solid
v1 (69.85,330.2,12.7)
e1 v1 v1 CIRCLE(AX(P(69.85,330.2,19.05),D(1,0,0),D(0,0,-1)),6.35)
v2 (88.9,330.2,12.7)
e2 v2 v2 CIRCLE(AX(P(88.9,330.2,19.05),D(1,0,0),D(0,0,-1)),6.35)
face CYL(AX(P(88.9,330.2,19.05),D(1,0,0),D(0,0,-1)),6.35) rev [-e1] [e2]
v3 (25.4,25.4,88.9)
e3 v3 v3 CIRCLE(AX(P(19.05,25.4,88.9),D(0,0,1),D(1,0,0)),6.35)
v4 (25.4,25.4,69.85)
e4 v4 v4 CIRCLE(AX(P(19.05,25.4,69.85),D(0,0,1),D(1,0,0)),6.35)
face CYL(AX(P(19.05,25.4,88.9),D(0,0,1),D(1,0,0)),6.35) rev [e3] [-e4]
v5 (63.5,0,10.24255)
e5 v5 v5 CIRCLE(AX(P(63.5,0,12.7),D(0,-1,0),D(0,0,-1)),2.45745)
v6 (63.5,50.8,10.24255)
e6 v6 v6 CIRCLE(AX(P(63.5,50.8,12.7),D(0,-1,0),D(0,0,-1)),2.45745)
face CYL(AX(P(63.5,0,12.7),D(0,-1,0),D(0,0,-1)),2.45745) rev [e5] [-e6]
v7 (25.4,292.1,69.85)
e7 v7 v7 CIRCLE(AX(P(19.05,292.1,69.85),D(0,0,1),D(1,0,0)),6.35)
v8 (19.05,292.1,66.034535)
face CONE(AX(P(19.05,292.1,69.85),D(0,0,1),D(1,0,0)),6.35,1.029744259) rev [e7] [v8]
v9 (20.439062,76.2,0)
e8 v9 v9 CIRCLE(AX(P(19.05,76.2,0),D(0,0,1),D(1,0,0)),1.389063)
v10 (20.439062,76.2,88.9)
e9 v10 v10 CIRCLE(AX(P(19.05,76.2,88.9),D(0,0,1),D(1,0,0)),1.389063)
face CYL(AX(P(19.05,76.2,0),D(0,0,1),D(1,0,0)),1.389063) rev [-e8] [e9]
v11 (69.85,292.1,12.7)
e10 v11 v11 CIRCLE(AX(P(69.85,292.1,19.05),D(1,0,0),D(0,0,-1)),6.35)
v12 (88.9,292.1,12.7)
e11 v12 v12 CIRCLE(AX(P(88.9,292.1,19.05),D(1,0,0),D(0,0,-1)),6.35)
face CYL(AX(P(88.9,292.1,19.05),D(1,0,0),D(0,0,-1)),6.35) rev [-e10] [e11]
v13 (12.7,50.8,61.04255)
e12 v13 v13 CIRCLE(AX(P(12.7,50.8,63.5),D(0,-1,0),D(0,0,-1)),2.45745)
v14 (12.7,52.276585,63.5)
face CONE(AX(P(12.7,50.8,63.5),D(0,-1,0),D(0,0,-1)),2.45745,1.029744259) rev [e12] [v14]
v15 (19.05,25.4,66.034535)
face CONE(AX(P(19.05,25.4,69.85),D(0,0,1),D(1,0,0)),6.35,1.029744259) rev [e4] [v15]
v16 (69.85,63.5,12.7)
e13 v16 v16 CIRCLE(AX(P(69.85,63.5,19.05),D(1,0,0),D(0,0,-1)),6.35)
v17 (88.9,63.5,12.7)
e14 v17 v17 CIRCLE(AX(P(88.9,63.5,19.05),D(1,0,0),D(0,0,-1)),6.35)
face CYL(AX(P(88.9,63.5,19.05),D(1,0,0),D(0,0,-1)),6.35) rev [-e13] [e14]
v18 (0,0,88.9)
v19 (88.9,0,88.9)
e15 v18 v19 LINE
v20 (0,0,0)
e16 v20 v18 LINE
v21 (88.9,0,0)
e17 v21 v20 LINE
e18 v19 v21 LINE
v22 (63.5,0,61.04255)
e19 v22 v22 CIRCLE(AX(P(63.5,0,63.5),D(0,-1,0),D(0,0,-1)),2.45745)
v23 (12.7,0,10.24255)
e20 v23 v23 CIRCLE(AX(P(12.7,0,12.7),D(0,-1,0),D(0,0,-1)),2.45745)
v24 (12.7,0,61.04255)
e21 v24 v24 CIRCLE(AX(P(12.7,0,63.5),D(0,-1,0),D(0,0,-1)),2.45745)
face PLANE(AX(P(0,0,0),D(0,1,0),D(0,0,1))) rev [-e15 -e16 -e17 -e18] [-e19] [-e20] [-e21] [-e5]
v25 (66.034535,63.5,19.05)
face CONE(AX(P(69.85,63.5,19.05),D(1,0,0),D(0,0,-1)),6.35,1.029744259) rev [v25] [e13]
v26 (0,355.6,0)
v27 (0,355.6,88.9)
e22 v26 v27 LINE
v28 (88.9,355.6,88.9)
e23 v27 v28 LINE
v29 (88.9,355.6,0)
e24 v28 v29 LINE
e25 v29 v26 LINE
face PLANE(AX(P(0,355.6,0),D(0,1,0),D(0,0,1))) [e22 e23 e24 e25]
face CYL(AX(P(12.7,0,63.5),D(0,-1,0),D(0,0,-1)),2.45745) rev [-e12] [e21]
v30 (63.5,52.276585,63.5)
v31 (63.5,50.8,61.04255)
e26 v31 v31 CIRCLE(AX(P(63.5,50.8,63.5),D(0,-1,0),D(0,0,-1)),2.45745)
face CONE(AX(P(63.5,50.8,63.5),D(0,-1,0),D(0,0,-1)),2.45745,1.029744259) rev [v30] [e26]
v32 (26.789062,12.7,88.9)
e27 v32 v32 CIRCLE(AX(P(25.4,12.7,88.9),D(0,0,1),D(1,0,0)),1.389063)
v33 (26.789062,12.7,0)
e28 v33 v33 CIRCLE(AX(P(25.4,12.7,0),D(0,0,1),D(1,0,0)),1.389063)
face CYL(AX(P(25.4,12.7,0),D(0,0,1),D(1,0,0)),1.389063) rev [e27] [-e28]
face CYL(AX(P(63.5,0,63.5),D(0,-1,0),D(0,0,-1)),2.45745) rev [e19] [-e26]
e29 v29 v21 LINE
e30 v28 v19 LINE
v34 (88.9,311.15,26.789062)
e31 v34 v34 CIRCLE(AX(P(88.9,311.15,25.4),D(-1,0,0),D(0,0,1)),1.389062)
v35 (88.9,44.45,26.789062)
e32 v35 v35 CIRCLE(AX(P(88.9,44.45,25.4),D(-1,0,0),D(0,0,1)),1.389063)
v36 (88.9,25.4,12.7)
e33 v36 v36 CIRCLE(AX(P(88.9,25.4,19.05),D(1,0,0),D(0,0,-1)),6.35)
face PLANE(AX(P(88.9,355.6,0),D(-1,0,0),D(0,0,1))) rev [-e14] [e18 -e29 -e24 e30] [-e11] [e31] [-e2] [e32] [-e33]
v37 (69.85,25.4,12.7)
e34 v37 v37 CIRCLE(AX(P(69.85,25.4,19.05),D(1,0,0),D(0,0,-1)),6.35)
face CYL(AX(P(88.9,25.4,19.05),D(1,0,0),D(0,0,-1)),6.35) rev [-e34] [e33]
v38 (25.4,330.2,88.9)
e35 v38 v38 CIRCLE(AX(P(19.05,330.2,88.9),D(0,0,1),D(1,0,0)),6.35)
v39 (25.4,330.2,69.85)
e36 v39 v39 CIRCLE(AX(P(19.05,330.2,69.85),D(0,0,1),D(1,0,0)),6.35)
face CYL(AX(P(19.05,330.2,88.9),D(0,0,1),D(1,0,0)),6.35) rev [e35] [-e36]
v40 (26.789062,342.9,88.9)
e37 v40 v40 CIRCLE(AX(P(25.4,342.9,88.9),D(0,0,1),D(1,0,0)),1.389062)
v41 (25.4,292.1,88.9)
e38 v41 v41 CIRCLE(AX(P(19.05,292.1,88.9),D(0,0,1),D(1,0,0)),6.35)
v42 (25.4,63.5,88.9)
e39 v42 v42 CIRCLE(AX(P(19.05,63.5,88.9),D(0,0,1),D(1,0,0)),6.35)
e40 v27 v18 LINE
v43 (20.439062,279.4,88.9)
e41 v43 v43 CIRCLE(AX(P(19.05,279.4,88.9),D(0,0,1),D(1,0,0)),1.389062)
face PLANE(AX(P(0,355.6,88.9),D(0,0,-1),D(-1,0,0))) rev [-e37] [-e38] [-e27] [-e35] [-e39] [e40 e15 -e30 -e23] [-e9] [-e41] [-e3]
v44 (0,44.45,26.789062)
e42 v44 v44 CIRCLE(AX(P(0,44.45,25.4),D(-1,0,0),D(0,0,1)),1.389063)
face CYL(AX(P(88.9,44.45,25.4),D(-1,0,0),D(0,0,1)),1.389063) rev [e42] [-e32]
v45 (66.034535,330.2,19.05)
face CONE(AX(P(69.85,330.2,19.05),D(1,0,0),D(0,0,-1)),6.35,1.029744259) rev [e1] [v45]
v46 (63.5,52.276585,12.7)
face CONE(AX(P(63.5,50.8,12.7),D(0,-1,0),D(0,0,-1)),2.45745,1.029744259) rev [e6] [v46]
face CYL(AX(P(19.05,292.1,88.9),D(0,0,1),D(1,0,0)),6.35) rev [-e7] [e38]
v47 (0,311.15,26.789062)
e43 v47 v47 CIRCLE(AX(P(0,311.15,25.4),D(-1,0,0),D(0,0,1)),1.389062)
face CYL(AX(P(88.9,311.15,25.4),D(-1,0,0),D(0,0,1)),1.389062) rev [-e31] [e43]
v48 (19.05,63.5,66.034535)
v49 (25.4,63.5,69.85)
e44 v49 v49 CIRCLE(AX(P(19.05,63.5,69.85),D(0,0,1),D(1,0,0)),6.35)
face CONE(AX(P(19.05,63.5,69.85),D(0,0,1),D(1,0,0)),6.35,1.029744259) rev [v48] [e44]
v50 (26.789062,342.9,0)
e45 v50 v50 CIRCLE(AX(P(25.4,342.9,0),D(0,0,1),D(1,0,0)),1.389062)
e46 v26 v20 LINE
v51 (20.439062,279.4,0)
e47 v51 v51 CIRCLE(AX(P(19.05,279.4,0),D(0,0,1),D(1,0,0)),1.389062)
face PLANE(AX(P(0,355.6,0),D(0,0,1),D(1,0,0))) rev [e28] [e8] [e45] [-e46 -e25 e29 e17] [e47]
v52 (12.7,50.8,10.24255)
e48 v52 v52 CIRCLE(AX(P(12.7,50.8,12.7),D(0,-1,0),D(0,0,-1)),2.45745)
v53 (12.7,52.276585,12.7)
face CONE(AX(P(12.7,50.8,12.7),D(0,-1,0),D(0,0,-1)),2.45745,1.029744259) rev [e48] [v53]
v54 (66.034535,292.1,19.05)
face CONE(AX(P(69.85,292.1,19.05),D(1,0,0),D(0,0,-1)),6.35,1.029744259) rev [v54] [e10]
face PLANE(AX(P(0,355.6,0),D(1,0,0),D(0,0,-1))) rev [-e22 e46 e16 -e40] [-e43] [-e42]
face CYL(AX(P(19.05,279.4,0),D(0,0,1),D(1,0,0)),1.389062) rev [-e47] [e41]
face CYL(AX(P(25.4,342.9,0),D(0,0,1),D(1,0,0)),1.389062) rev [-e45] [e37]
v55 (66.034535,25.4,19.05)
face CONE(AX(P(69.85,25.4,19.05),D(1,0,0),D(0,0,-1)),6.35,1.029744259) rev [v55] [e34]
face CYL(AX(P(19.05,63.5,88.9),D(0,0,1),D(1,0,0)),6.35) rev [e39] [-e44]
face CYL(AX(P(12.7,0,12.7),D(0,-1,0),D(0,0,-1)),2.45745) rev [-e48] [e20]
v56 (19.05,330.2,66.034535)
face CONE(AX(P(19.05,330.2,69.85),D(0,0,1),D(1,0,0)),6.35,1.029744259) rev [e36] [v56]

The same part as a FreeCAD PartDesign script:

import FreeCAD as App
import Part
import Sketcher

V = App.Vector
Q = App.Units.Quantity


def add_polygon(sketch, points):
    """Adds a closed chain of lines whose ends are joined by coincident constraints."""
    first, n = sketch.GeometryCount, len(points)
    for a, b in zip(points, points[1:] + points[:1]):
        sketch.addGeometry(Part.LineSegment(App.Vector(*a, 0), App.Vector(*b, 0)), False)
    for i in range(n):
        sketch.addConstraint(Sketcher.Constraint("Coincident", first + i, 2, first + (i + 1) % n, 1))

doc = App.newDocument("Part")
body = doc.addObject("PartDesign::Body", "Body")

sketch1 = body.newObject("Sketcher::SketchObject", "Sketch")
sketch1.AttachmentSupport = (doc.getObject("XZ_Plane"), [""])
sketch1.MapMode = "FlatFace"
add_polygon(sketch1, [(0, 0), (0, 89), (89, 89), (89, 0)])
sketch1.addConstraint(Sketcher.Constraint("Vertical", 0))
sketch1.addConstraint(Sketcher.Constraint("Horizontal", 1))
sketch1.addConstraint(Sketcher.Constraint("Vertical", 2))
sketch1.addConstraint(Sketcher.Constraint("Horizontal", 3))
sketch1.addConstraint(Sketcher.Constraint("Coincident", 3, 2, -1, 1))
sketch1.addConstraint(Sketcher.Constraint("Equal", 3, 0))
sketch1.addConstraint(Sketcher.Constraint("DistanceX", 1, 1, 1, 2, Q("3.5 in")))
pad1 = body.newObject("PartDesign::Pad", "Pad")
pad1.Profile = sketch1
pad1.Length = Q("14 in")
pad1.Reversed = True

sketch2 = body.newObject("Sketcher::SketchObject", "Sketch001")
sketch2.AttachmentSupport = (doc.getObject("XY_Plane"), [""])
sketch2.MapMode = "FlatFace"
sketch2.AttachmentOffset = App.Placement(V(0, 0, 3.5 * 25.4), App.Rotation())
sketch2.addGeometry(Part.Circle(V(19.1, 76.2, 0), V(0, 0, 1), 1.4), False)
sketch2.addGeometry(Part.Circle(V(19.1, 279.4, 0), V(0, 0, 1), 1.4), False)
sketch2.addGeometry(Part.Circle(V(25.4, 342.9, 0), V(0, 0, 1), 1.4), False)
sketch2.addGeometry(Part.Circle(V(25.4, 12.7, 0), V(0, 0, 1), 1.4), False)
sketch2.addConstraint(Sketcher.Constraint("Equal", 0, 1))
sketch2.addConstraint(Sketcher.Constraint("Equal", 1, 2))
sketch2.addConstraint(Sketcher.Constraint("Equal", 2, 3))
sketch2.addConstraint(Sketcher.Constraint("Vertical", 0, 3, 1, 3))
sketch2.addConstraint(Sketcher.Constraint("Vertical", 2, 3, 3, 3))
sketch2.addConstraint(Sketcher.Constraint("Diameter", 0, Q("0.109375 in")))
sketch2.addConstraint(Sketcher.Constraint("DistanceY", -1, 1, 0, 3, Q("3 in")))
sketch2.addConstraint(Sketcher.Constraint("DistanceY", -1, 1, 1, 3, Q("11 in")))
sketch2.addConstraint(Sketcher.Constraint("DistanceX", -1, 1, 2, 3, Q("1 in")))
sketch2.addConstraint(Sketcher.Constraint("DistanceY", 3, 3, 2, 3, Q("13 in")))
sketch2.addConstraint(Sketcher.Constraint("DistanceY", -1, 1, 2, 3, Q("13.5 in")))
sketch2.addConstraint(Sketcher.Constraint("DistanceX", -1, 1, 0, 3, Q("0.75 in")))
pocket1 = body.newObject("PartDesign::Pocket", "Pocket")
pocket1.Profile = sketch2
pocket1.Type = "ThroughAll"
pocket1.Midplane = True

sketch3 = body.newObject("Sketcher::SketchObject", "Sketch002")
sketch3.AttachmentSupport = (doc.getObject("YZ_Plane"), [""])
sketch3.MapMode = "FlatFace"
sketch3.addGeometry(Part.Circle(V(311.1, 25.4, 0), V(0, 0, 1), 1.4), False)
sketch3.addGeometry(Part.Circle(V(44.5, 25.4, 0), V(0, 0, 1), 1.4), False)
sketch3.addConstraint(Sketcher.Constraint("Equal", 0, 1))
sketch3.addConstraint(Sketcher.Constraint("Horizontal", 0, 3, 1, 3))
sketch3.addConstraint(Sketcher.Constraint("Diameter", 0, Q("0.109375 in")))
sketch3.addConstraint(Sketcher.Constraint("DistanceY", -1, 1, 0, 3, Q("1 in")))
sketch3.addConstraint(Sketcher.Constraint("DistanceX", 1, 3, 0, 3, Q("10.5 in")))
sketch3.addConstraint(Sketcher.Constraint("DistanceX", -1, 1, 0, 3, Q("12.25 in")))
pocket2 = body.newObject("PartDesign::Pocket", "Pocket001")
pocket2.Profile = sketch3
pocket2.Type = "ThroughAll"
pocket2.Midplane = True

sketch4 = body.newObject("Sketcher::SketchObject", "Sketch003")
sketch4.AttachmentSupport = (doc.getObject("XY_Plane"), [""])
sketch4.MapMode = "FlatFace"
sketch4.AttachmentOffset = App.Placement(V(0, 0, 3.5 * 25.4), App.Rotation())
sketch4.addGeometry(Part.Circle(V(19, 292, 0), V(0, 0, 1), 6), False)
sketch4.addGeometry(Part.Circle(V(19, 330, 0), V(0, 0, 1), 6), False)
sketch4.addGeometry(Part.Circle(V(19, 25, 0), V(0, 0, 1), 6), False)
sketch4.addGeometry(Part.Circle(V(19, 64, 0), V(0, 0, 1), 6), False)
sketch4.addConstraint(Sketcher.Constraint("Equal", 0, 1))
sketch4.addConstraint(Sketcher.Constraint("Equal", 1, 2))
sketch4.addConstraint(Sketcher.Constraint("Equal", 2, 3))
sketch4.addConstraint(Sketcher.Constraint("Vertical", 0, 3, 1, 3))
sketch4.addConstraint(Sketcher.Constraint("Vertical", 1, 3, 2, 3))
sketch4.addConstraint(Sketcher.Constraint("Vertical", 2, 3, 3, 3))
sketch4.addConstraint(Sketcher.Constraint("Diameter", 0, Q("0.5 in")))
sketch4.addConstraint(Sketcher.Constraint("DistanceY", -1, 1, 1, 3, Q("13 in")))
sketch4.addConstraint(Sketcher.Constraint("DistanceY", -1, 1, 2, 3, Q("1 in")))
sketch4.addConstraint(Sketcher.Constraint("DistanceY", 3, 3, 0, 3, Q("9 in")))
sketch4.addConstraint(Sketcher.Constraint("DistanceY", -1, 1, 0, 3, Q("11.5 in")))
sketch4.addConstraint(Sketcher.Constraint("DistanceX", -1, 1, 0, 3, Q("0.75 in")))
doc.recompute()
hole = body.newObject("PartDesign::Hole", "Hole")
hole.Profile = sketch4
hole.ThreadType = "None"
hole.Diameter = Q("0.5 in")
hole.DepthType = "Dimension"
hole.Depth = Q("0.75 in")
hole.DrillPoint = "Angled"
hole.DrillPointAngle = 118

sketch5 = body.newObject("Sketcher::SketchObject", "Sketch004")
sketch5.AttachmentSupport = (doc.getObject("YZ_Plane"), [""])
sketch5.MapMode = "FlatFace"
sketch5.AttachmentOffset = App.Placement(V(0, 0, 3.5 * 25.4), App.Rotation())
sketch5.addGeometry(Part.Circle(V(64, 19, 0), V(0, 0, 1), 6), False)
sketch5.addGeometry(Part.Circle(V(25, 19, 0), V(0, 0, 1), 6), False)
sketch5.addGeometry(Part.Circle(V(330, 19, 0), V(0, 0, 1), 6), False)
sketch5.addGeometry(Part.Circle(V(292, 19, 0), V(0, 0, 1), 6), False)
sketch5.addConstraint(Sketcher.Constraint("Equal", 0, 1))
sketch5.addConstraint(Sketcher.Constraint("Equal", 1, 2))
sketch5.addConstraint(Sketcher.Constraint("Equal", 2, 3))
sketch5.addConstraint(Sketcher.Constraint("Horizontal", 0, 3, 1, 3))
sketch5.addConstraint(Sketcher.Constraint("Horizontal", 1, 3, 2, 3))
sketch5.addConstraint(Sketcher.Constraint("Horizontal", 2, 3, 3, 3))
sketch5.addConstraint(Sketcher.Constraint("Diameter", 0, Q("0.5 in")))
sketch5.addConstraint(Sketcher.Constraint("DistanceX", -1, 1, 1, 3, Q("1 in")))
sketch5.addConstraint(Sketcher.Constraint("DistanceX", -1, 1, 2, 3, Q("13 in")))
sketch5.addConstraint(Sketcher.Constraint("DistanceX", 0, 3, 3, 3, Q("9 in")))
sketch5.addConstraint(Sketcher.Constraint("DistanceX", -1, 1, 0, 3, Q("2.5 in")))
sketch5.addConstraint(Sketcher.Constraint("DistanceY", -1, 1, 0, 3, Q("0.75 in")))
doc.recompute()
hole2 = body.newObject("PartDesign::Hole", "Hole001")
hole2.Profile = sketch5
hole2.ThreadType = "None"
hole2.Diameter = Q("0.5 in")
hole2.DepthType = "Dimension"
hole2.Depth = Q("0.75 in")
hole2.DrillPoint = "Angled"
hole2.DrillPointAngle = 118

sketch6 = body.newObject("Sketcher::SketchObject", "Sketch005")
sketch6.AttachmentSupport = (doc.getObject("XZ_Plane"), [""])
sketch6.MapMode = "FlatFace"
sketch6.addGeometry(Part.Circle(V(12.7, 63.5, 0), V(0, 0, 1), 2.5), False)
sketch6.addGeometry(Part.Circle(V(63.5, 63.5, 0), V(0, 0, 1), 2.5), False)
sketch6.addGeometry(Part.Circle(V(63.5, 12.7, 0), V(0, 0, 1), 2.5), False)
sketch6.addGeometry(Part.Circle(V(12.7, 12.7, 0), V(0, 0, 1), 2.5), False)
sketch6.addConstraint(Sketcher.Constraint("Equal", 0, 1))
sketch6.addConstraint(Sketcher.Constraint("Equal", 1, 2))
sketch6.addConstraint(Sketcher.Constraint("Equal", 2, 3))
sketch6.addConstraint(Sketcher.Constraint("Horizontal", 0, 3, 1, 3))
sketch6.addConstraint(Sketcher.Constraint("Horizontal", 2, 3, 3, 3))
sketch6.addConstraint(Sketcher.Constraint("Vertical", 1, 3, 2, 3))
sketch6.addConstraint(Sketcher.Constraint("Vertical", 0, 3, 3, 3))
sketch6.addConstraint(Sketcher.Constraint("DistanceX", 0, 3, 1, 3, Q("2 in")))
sketch6.addConstraint(Sketcher.Constraint("DistanceY", 2, 3, 1, 3, Q("2 in")))
sketch6.addConstraint(Sketcher.Constraint("Diameter", 0, Q("0.1935 in")))
sketch6.addConstraint(Sketcher.Constraint("DistanceX", -1, 1, 0, 3, Q("0.5 in")))
sketch6.addConstraint(Sketcher.Constraint("DistanceY", -1, 1, 0, 3, Q("2.5 in")))
doc.recompute()
hole3 = body.newObject("PartDesign::Hole", "Hole002")
hole3.Profile = sketch6
hole3.ThreadType = "None"
hole3.Diameter = Q("0.1935 in")
hole3.DepthType = "Dimension"
hole3.Depth = Q("2 in")
hole3.DrillPoint = "Angled"
hole3.DrillPointAngle = 118

doc.recompute()
